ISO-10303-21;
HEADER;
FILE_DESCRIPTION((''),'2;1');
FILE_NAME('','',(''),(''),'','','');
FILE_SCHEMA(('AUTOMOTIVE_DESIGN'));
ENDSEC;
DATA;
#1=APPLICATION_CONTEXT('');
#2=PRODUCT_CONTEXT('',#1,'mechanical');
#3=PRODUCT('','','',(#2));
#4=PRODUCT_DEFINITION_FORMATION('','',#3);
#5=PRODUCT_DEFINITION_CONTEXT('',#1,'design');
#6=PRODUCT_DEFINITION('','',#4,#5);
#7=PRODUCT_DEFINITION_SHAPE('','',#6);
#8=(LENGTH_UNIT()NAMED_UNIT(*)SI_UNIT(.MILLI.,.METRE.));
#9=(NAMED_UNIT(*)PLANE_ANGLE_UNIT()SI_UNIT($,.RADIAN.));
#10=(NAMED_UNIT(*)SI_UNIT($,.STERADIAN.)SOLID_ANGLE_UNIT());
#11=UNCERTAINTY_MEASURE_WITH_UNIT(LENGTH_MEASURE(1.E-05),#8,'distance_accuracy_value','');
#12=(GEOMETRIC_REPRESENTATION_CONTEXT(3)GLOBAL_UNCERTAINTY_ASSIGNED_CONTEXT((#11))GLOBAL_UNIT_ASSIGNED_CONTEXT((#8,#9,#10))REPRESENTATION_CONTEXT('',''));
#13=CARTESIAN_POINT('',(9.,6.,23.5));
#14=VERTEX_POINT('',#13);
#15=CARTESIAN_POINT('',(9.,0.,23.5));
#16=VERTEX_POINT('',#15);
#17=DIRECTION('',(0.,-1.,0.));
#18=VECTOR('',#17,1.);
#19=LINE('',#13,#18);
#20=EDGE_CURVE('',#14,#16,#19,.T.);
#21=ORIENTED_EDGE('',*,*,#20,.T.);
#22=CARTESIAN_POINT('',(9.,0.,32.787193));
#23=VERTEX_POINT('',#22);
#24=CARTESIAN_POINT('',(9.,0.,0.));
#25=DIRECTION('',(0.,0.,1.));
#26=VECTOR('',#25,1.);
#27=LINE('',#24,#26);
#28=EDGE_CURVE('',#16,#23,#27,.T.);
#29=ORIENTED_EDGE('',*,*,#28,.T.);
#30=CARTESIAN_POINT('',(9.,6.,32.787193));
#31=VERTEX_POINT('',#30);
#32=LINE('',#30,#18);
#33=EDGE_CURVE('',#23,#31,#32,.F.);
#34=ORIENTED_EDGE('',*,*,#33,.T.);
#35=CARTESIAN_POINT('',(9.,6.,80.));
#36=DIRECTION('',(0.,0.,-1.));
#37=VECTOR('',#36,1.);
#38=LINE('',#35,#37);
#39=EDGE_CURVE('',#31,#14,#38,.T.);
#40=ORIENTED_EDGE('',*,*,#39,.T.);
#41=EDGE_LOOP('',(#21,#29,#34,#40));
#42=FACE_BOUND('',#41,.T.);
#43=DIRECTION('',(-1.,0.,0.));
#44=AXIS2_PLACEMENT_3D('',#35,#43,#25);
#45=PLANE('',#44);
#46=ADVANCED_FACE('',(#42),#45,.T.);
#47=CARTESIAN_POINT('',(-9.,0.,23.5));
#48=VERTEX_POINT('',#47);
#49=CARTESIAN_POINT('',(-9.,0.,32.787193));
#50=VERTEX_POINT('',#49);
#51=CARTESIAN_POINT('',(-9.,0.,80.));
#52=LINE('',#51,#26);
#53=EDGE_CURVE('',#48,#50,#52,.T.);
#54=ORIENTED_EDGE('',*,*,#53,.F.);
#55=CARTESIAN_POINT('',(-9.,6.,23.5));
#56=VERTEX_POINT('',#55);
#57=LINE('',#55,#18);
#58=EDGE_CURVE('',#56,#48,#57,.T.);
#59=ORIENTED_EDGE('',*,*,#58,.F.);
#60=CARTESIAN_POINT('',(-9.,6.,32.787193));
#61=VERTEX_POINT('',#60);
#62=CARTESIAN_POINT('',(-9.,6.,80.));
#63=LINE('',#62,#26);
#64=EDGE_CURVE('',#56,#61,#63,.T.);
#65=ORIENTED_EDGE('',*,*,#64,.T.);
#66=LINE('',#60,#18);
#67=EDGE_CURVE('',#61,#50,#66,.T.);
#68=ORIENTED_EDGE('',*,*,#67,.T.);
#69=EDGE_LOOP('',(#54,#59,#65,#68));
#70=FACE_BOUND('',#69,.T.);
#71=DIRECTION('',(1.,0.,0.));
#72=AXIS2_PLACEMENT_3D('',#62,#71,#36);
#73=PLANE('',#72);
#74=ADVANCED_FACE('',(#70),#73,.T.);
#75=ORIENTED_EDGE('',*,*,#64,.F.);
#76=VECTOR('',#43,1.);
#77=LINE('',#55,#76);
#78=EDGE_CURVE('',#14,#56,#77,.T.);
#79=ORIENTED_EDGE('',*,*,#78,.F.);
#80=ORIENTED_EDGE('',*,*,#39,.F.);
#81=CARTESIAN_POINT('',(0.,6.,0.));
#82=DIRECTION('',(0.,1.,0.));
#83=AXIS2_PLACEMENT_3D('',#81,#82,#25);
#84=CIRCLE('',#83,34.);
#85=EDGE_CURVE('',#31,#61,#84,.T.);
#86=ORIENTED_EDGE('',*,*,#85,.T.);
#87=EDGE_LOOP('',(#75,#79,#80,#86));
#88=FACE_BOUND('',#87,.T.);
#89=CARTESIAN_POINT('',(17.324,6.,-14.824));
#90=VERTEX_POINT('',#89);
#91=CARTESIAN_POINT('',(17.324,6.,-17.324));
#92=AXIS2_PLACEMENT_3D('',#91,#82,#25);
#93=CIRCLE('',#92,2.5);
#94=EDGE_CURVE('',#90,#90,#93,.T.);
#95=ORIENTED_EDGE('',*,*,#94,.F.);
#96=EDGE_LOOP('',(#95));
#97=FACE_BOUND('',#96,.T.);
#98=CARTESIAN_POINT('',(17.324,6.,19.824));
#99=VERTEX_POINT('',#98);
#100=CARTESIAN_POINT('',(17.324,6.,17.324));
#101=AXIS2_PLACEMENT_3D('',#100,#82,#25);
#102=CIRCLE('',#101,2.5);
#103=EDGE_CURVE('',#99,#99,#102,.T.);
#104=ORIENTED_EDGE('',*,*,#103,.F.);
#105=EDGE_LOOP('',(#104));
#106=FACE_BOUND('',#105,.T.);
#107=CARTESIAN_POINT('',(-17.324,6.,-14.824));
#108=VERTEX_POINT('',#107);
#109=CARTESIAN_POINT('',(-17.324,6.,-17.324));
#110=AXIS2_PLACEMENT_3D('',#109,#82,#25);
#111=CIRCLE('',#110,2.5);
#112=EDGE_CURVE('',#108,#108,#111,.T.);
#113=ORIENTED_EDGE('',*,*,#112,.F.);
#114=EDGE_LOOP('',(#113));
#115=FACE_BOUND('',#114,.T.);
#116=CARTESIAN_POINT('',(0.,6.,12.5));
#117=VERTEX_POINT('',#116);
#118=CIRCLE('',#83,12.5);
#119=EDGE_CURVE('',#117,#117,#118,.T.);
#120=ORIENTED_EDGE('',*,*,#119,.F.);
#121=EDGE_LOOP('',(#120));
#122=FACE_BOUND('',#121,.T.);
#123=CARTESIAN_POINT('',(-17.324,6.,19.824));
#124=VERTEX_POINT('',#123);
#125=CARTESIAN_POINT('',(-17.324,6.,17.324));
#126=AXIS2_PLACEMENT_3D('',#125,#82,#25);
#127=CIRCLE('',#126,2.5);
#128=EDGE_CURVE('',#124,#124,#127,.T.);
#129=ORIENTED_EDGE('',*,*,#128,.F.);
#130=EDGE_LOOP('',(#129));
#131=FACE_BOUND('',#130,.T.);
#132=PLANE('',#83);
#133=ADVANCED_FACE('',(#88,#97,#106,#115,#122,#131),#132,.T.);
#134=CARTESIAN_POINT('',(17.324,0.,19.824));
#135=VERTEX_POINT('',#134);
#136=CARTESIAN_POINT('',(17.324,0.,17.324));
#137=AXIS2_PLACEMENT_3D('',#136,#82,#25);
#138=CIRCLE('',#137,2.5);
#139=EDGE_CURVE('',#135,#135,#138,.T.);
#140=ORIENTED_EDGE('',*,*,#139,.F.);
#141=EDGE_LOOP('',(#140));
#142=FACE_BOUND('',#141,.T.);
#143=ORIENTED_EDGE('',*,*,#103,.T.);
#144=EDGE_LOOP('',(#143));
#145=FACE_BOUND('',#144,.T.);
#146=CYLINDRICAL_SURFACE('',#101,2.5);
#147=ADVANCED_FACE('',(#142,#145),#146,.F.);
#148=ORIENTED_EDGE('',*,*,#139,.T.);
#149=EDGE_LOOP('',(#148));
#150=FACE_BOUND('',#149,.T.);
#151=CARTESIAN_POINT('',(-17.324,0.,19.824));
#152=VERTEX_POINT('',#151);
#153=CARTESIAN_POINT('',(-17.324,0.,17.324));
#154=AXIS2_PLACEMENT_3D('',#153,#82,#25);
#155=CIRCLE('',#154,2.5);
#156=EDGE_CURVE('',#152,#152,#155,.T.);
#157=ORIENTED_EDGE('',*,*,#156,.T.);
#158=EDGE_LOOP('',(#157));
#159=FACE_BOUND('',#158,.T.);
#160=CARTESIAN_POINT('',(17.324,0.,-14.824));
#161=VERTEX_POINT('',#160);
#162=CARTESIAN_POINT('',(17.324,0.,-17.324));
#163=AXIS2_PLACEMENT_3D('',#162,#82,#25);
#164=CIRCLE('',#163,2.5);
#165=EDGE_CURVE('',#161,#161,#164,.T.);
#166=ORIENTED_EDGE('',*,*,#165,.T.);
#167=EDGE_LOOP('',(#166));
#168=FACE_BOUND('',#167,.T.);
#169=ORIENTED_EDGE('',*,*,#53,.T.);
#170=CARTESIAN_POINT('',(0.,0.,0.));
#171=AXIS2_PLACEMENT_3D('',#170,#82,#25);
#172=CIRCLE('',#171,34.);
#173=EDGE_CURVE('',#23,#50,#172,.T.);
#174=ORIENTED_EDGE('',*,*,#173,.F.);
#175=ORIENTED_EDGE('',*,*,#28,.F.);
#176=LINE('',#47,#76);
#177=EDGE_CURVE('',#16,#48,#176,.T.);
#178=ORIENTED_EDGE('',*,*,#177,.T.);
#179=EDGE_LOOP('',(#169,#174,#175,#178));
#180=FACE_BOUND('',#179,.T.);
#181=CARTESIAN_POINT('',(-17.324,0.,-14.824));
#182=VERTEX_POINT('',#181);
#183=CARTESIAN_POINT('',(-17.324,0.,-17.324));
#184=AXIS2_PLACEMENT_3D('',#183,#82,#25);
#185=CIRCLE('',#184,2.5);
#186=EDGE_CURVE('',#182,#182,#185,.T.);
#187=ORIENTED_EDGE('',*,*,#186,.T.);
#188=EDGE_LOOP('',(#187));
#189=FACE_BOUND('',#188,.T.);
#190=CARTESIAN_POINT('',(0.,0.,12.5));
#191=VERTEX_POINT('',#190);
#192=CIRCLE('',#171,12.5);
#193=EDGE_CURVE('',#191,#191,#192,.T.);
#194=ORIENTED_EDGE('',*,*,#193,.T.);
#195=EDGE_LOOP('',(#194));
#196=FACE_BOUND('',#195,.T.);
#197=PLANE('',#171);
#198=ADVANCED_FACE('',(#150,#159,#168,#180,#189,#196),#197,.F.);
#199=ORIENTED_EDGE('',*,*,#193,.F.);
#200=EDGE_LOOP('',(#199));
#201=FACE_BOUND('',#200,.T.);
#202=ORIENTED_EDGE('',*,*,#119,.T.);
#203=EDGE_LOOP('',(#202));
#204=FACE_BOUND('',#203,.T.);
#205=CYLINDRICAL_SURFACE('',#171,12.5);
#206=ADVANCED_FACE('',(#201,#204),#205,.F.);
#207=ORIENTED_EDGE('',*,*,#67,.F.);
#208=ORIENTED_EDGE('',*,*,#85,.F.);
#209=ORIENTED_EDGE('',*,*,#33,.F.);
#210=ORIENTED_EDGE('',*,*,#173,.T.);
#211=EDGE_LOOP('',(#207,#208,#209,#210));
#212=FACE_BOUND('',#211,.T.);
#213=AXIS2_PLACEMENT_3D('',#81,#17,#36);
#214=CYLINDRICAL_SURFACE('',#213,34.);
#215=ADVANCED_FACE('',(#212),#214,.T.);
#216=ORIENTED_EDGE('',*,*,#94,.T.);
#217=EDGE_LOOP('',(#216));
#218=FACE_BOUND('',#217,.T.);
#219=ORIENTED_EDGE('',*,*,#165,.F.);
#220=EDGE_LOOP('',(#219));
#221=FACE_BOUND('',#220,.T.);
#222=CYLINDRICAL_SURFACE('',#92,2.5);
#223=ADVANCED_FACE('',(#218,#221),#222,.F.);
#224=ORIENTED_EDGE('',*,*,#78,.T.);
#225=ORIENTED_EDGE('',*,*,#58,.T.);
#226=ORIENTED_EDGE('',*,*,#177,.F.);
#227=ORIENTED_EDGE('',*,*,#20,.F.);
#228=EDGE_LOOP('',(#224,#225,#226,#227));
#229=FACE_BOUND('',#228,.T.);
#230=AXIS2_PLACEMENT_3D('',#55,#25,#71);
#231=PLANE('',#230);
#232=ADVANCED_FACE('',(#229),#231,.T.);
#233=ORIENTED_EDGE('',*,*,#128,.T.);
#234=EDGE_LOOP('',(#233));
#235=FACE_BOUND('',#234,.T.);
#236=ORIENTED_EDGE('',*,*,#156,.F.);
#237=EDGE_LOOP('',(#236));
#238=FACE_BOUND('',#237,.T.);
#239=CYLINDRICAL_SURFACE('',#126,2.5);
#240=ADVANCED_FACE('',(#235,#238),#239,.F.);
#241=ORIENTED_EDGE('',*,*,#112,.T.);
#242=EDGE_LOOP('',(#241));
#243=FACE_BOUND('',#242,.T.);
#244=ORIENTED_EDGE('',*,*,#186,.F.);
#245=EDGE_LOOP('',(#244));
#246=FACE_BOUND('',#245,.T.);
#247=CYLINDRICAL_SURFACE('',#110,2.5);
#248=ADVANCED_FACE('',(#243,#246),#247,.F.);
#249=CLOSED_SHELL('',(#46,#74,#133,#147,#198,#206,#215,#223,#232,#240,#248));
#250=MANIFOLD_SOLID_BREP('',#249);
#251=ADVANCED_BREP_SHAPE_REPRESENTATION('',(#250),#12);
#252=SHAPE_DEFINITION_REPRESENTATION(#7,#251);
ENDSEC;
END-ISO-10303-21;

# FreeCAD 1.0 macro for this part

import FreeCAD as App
import Part
import Sketcher

V = App.Vector
Q = App.Units.Quantity


def add_polygon(sketch, points):
    """Adds a closed chain of lines whose ends are joined by coincident constraints."""
    first, n = sketch.GeometryCount, len(points)
    for a, b in zip(points, points[1:] + points[:1]):
        sketch.addGeometry(Part.LineSegment(App.Vector(*a, 0), App.Vector(*b, 0)), False)
    for i in range(n):
        sketch.addConstraint(Sketcher.Constraint("Coincident", first + i, 2, first + (i + 1) % n, 1))

doc = App.newDocument("Part")
params = doc.addObject("Spreadsheet::Sheet", "Params")
for row, (alias, value) in enumerate([
    ("sketch1_diameter", "68 mm"),
    ("pad1_length", "6 mm"),
    ("sketch2_width", "10 mm"),
    ("sketch2_height", "2.5 mm"),
    ("groove_angle", "360 deg"),
    ("sketch3_diameter", "25 mm"),
    ("sketch4_width", "18 mm"),
    ("sketch4_height", "56.5 mm"),
], start=1):
    params.set(f"A{row}", alias)
    params.set(f"B{row}", "=" + value)
    params.setAlias(f"B{row}", alias)

body = doc.addObject("PartDesign::Body", "Body")

# Sketch on XZ plane
sketch1 = body.newObject("Sketcher::SketchObject", "Sketch")
sketch1.AttachmentSupport = (doc.getObject("XZ_Plane"), [""])
sketch1.MapMode = "FlatFace"
sketch1.addGeometry(Part.Circle(V(0, 0, 0), V(0, 0, 1), 34), False)
sketch1.addConstraint([
    Sketcher.Constraint("Coincident", 0, 3, -1, 1),
    Sketcher.Constraint("Diameter", 0, 68.0),
])
sketch1.setExpression("Constraints[1]", "Params.sketch1_diameter")
pad1 = body.newObject("PartDesign::Pad", "Pad")
pad1.Profile = sketch1
pad1.setExpression("Length", "Params.pad1_length")
pad1.Reversed = True

# Sketch on YZ plane
sketch2 = body.newObject("Sketcher::SketchObject", "Sketch001")
sketch2.AttachmentSupport = (doc.getObject("YZ_Plane"), [""])
sketch2.MapMode = "FlatFace"
sketch2.AttachmentOffset = App.Placement(V(0, 0, 17.324), App.Rotation())
add_polygon(sketch2, [(-5.5, -17.3), (6, -17.3), (6, -14.8), (-4, -14.8)])  # lines 0-3
sketch2.addGeometry(Part.LineSegment(V(6, -17.3, 0), V(-5.5, -17.3, 0)), True)  # axis
sketch2.addConstraint([
    Sketcher.Constraint("Horizontal", 0),
    Sketcher.Constraint("Vertical", 1),
    Sketcher.Constraint("Horizontal", 2),
    Sketcher.Constraint("Horizontal", 4),
    Sketcher.Constraint("Coincident", 4, 1, 0, 2),
    Sketcher.Constraint("Equal", 0, 4),
    Sketcher.Constraint("DistanceX", 2, 2, 2, 1, 10.0),
    Sketcher.Constraint("Angle", 3, Q("-121 deg")),
    Sketcher.Constraint("DistanceY", 1, 1, 1, 2, 2.5),
    Sketcher.Constraint("DistanceX", -1, 1, 0, 2, 6.0),
    Sketcher.Constraint("DistanceY", 0, 2, -1, 1, 17.324),
])
sketch2.setExpression("Constraints[10]", "Params.sketch2_width")
sketch2.setExpression("Constraints[12]", "Params.sketch2_height")
groove = body.newObject("PartDesign::Groove", "Groove")
groove.Profile = sketch2
groove.ReferenceAxis = (sketch2, ["Axis0"])
groove.setExpression("Angle", "Params.groove_angle")
doc.recompute()

polarpattern = body.newObject("PartDesign::PolarPattern", "PolarPattern")
polarpattern.Originals = [groove]
polarpattern.Axis = (doc.getObject("Y_Axis"), [""])
polarpattern.Angle = 360
polarpattern.Occurrences = 4
body.Tip = polarpattern

# Sketch on XZ plane
sketch3 = body.newObject("Sketcher::SketchObject", "Sketch002")
sketch3.AttachmentSupport = (doc.getObject("XZ_Plane"), [""])
sketch3.MapMode = "FlatFace"
sketch3.AttachmentOffset = App.Placement(V(0, 0, -6), App.Rotation())
sketch3.addGeometry(Part.Circle(V(0, 0, 0), V(0, 0, 1), 12), False)
sketch3.addConstraint([
    Sketcher.Constraint("Coincident", 0, 3, -1, 1),
    Sketcher.Constraint("Diameter", 0, 25.0),
])
sketch3.setExpression("Constraints[1]", "Params.sketch3_diameter")
pocket1 = body.newObject("PartDesign::Pocket", "Pocket")
pocket1.Profile = sketch3
pocket1.Type = "ThroughAll"
pocket1.Reversed = True

# Sketch on XZ plane
sketch4 = body.newObject("Sketcher::SketchObject", "Sketch003")
sketch4.AttachmentSupport = (doc.getObject("XZ_Plane"), [""])
sketch4.MapMode = "FlatFace"
add_polygon(sketch4, [(-9, 24), (-9, 80), (9, 80), (9, 24)])  # lines 0-3
sketch4.addConstraint([
    Sketcher.Constraint("Vertical", 0),
    Sketcher.Constraint("Horizontal", 1),
    Sketcher.Constraint("Vertical", 2),
    Sketcher.Constraint("Horizontal", 3),
    Sketcher.Constraint("DistanceX", 1, 1, 1, 2, 18.0),
    Sketcher.Constraint("DistanceY", 0, 1, 0, 2, 56.5),
    Sketcher.Constraint("DistanceX", 0, 2, -1, 1, 9.0),
    Sketcher.Constraint("DistanceY", -1, 1, 0, 2, 80.0),
])
sketch4.setExpression("Constraints[8]", "Params.sketch4_width")
sketch4.setExpression("Constraints[9]", "Params.sketch4_height")
pocket2 = body.newObject("PartDesign::Pocket", "Pocket001")
pocket2.Profile = sketch4
pocket2.Type = "ThroughAll"

doc.recompute()
